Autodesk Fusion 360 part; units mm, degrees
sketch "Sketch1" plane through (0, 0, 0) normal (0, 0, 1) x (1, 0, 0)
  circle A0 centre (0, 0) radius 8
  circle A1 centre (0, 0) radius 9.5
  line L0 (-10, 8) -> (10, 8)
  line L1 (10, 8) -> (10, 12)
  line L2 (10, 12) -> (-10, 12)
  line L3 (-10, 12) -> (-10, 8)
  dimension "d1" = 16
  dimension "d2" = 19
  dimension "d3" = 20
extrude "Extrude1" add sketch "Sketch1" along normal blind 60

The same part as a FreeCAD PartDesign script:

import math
import FreeCAD as App
import Part
import Sketcher
from FreeCAD import Vector

doc = App.newDocument("Part")
params = doc.addObject("Spreadsheet::Sheet", "Params")
for row, (alias, value) in enumerate([
    ("sketch1_diameter", "16 mm"),
    ("sketch1_radius", "9.5 mm"),
    ("sketch1_width", "20 mm"),
    ("sketch1_height", "4 mm"),
    ("pad1_length", "60 mm"),
], start=1):
    params.set(f"A{row}", alias)
    params.set(f"B{row}", "=" + value)
    params.setAlias(f"B{row}", alias)

body = doc.addObject("PartDesign::Body", "Body")

# Sketch on XY plane
sketch1 = body.newObject("Sketcher::SketchObject", "Sketch")
sketch1.AttachmentSupport = (doc.getObject("XY_Plane"), [""])
sketch1.MapMode = "FlatFace"
sketch1.addGeometry([
    Part.LineSegment(Vector(5.1, 8, 0), Vector(10, 8, 0)),  # 0
    Part.LineSegment(Vector(10, 8, 0), Vector(10, 12, 0)),  # 1
    Part.LineSegment(Vector(10, 12, 0), Vector(-10, 12, 0)),  # 2
    Part.LineSegment(Vector(-10, 12, 0), Vector(-10, 8, 0)),  # 3
    Part.LineSegment(Vector(-10, 8, 0), Vector(-5.1, 8, 0)),  # 4
    Part.ArcOfCircle(Part.Circle(Vector(0, 0, 0), Vector(0, 0, 1), 9.5), math.radians(123), math.radians(417)),  # 5
    Part.Circle(Vector(0, 0, 0), Vector(0, 0, 1), 8),  # 6
], False)
sketch1.addConstraint([
    Sketcher.Constraint("Coincident", 0, 2, 1, 1),
    Sketcher.Constraint("Coincident", 1, 2, 2, 1),
    Sketcher.Constraint("Coincident", 2, 2, 3, 1),
    Sketcher.Constraint("Coincident", 3, 2, 4, 1),
    Sketcher.Constraint("Coincident", 4, 2, 5, 1),
    Sketcher.Constraint("Coincident", 5, 2, 0, 1),
    Sketcher.Constraint("Horizontal", 0),
    Sketcher.Constraint("Vertical", 1),
    Sketcher.Constraint("Horizontal", 2),
    Sketcher.Constraint("Vertical", 3),
    Sketcher.Constraint("Horizontal", 4),
    Sketcher.Constraint("Coincident", 5, 3, -1, 1),
    Sketcher.Constraint("Coincident", 6, 3, -1, 1),
    Sketcher.Constraint("Symmetric", 0, 2, 3, 2, -2),
    Sketcher.Constraint("Diameter", 6, 16.0),
    Sketcher.Constraint("Radius", 5, 9.5),
    Sketcher.Constraint("DistanceX", 2, 2, 2, 1, 20.0),
    Sketcher.Constraint("DistanceY", 1, 1, 1, 2, 4.0),
    Sketcher.Constraint("DistanceY", -1, 1, 0, 2, 8.0),
])
sketch1.setExpression("Constraints[14]", "Params.sketch1_diameter")
sketch1.setExpression("Constraints[15]", "Params.sketch1_radius")
sketch1.setExpression("Constraints[16]", "Params.sketch1_width")
sketch1.setExpression("Constraints[17]", "Params.sketch1_height")
pad1 = body.newObject("PartDesign::Pad", "Pad")
pad1.Profile = sketch1
pad1.setExpression("Length", "Params.pad1_length")

doc.recompute()
